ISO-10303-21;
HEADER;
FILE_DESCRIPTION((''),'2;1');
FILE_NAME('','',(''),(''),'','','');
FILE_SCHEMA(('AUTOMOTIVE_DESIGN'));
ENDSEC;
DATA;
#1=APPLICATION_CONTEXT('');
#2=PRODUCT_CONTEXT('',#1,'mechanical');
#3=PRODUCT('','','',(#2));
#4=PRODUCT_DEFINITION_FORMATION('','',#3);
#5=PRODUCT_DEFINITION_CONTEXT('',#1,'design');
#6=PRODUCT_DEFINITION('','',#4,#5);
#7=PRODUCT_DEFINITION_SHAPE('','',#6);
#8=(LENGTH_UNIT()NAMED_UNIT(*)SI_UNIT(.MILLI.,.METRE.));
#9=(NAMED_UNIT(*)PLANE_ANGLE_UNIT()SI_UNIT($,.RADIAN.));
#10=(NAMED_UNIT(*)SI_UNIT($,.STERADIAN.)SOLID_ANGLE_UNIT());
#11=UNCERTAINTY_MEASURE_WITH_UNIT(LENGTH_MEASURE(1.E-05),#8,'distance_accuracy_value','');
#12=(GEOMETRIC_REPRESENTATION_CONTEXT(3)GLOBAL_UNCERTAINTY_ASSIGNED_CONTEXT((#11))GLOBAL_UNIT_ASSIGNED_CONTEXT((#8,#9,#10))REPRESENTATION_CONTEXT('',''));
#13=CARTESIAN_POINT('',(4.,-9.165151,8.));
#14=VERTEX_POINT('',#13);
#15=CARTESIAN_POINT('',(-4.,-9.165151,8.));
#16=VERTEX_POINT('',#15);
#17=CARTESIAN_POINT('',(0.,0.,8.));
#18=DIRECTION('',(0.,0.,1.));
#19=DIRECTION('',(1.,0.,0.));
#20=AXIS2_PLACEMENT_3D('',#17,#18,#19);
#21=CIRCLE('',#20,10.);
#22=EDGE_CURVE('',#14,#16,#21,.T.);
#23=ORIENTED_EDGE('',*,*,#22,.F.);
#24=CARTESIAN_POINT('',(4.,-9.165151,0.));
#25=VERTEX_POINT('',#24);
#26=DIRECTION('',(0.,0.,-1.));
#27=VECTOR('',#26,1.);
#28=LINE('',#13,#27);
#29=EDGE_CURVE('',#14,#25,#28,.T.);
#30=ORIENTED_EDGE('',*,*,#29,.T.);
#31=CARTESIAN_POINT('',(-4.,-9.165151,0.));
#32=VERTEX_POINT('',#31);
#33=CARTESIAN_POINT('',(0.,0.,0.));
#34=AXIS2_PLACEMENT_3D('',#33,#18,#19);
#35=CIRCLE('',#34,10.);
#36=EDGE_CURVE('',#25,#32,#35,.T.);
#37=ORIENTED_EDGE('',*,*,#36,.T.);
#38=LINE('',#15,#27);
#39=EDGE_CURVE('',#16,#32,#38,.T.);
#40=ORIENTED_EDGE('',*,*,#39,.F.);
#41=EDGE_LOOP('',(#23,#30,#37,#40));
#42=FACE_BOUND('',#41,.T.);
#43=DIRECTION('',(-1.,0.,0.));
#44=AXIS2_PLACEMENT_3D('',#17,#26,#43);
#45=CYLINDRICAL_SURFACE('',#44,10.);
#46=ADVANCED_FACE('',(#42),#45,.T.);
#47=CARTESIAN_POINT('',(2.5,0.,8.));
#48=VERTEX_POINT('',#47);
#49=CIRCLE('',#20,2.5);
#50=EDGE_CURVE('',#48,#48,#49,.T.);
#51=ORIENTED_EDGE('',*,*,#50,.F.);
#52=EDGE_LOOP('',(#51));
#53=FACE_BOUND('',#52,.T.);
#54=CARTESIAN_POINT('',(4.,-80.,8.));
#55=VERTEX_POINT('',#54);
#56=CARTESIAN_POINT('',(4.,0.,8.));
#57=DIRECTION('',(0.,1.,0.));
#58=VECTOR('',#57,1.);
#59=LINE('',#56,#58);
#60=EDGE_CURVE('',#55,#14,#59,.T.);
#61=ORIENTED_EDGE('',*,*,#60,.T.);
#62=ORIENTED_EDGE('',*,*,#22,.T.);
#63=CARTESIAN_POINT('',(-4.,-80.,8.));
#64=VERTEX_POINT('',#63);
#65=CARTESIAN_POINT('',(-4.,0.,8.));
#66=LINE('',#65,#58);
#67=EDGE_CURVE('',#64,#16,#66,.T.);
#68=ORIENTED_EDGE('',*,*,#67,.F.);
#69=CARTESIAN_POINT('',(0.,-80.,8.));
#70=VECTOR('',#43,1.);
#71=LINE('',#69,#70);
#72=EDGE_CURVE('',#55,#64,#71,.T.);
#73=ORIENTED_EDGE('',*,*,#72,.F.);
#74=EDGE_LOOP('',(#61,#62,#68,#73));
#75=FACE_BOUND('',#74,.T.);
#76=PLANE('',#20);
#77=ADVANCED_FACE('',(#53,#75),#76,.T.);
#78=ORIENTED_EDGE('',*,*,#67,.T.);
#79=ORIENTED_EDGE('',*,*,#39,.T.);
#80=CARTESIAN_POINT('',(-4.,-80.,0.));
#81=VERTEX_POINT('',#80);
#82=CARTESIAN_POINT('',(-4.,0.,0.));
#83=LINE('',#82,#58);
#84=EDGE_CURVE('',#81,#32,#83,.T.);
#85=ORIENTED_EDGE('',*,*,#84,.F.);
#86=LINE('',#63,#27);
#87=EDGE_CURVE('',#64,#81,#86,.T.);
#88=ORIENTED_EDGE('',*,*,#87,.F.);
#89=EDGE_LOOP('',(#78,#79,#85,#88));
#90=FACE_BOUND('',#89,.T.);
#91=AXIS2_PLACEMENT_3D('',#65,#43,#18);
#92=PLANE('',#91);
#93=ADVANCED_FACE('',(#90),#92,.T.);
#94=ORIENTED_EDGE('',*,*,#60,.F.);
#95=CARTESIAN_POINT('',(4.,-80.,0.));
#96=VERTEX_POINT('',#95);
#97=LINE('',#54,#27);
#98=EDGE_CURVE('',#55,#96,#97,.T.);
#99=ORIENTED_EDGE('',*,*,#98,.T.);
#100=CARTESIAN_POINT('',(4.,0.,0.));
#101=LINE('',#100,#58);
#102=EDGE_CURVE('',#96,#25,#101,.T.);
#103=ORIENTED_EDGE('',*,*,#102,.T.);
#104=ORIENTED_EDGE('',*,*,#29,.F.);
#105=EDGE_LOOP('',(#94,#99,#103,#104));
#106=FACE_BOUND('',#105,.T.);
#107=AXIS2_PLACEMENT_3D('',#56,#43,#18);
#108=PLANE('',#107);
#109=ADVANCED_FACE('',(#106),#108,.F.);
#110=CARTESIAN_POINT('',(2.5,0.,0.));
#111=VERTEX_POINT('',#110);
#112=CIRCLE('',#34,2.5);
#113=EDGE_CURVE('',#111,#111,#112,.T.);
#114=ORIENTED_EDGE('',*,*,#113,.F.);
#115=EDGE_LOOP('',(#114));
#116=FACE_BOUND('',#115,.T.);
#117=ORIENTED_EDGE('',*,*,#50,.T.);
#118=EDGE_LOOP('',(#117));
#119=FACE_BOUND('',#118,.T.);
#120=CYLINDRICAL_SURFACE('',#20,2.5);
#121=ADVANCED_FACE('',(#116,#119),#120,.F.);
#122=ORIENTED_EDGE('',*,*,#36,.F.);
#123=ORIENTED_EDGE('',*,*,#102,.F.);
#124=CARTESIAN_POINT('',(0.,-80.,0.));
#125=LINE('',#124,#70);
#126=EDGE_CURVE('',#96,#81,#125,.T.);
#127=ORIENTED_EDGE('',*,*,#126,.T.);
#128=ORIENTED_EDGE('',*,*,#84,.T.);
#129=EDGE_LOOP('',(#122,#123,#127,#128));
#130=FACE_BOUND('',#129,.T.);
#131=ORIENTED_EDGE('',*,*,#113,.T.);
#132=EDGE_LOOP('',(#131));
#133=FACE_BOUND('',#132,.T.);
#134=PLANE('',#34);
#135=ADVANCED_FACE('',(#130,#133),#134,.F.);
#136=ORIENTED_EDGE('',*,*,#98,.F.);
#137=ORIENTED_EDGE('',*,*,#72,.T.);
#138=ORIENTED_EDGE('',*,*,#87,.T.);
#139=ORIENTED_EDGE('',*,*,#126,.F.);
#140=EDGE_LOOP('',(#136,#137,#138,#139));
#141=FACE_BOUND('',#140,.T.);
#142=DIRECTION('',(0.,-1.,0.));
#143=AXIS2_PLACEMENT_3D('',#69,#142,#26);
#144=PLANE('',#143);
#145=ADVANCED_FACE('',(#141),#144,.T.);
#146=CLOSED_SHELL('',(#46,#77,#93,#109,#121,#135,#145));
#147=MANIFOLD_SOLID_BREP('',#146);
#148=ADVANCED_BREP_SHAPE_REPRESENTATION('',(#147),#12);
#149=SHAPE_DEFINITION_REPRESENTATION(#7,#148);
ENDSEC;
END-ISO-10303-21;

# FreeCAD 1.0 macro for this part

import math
import FreeCAD as App
import Part
import Sketcher
Q = App.Units.Quantity

doc = App.newDocument("Part")
body = doc.addObject("PartDesign::Body", "Body")

# Sketch on XY plane
sketch1 = doc.addObject("Sketcher::SketchObject", "Sketch")
body.addObject(sketch1)
sketch1.AttachmentSupport = (doc.XY_Plane, [""])
sketch1.MapMode = "FlatFace"
sketch1.addGeometry(Part.LineSegment(App.Vector(-4, -9.165151, 0), App.Vector(-4, -80, 0)), False)
sketch1.addGeometry(Part.LineSegment(App.Vector(-4, -80, 0), App.Vector(4, -80, 0)), False)
sketch1.addGeometry(Part.LineSegment(App.Vector(4, -80, 0), App.Vector(4, -9.165151, 0)), False)
sketch1.addGeometry(Part.ArcOfCircle(Part.Circle(App.Vector(0, 0, 0), App.Vector(0, 0, 1), 10), math.radians(-66.421822), math.radians(246.421822)), False)
sketch1.addConstraint(Sketcher.Constraint("Coincident", 0, 2, 1, 1))
sketch1.addConstraint(Sketcher.Constraint("Coincident", 1, 2, 2, 1))
sketch1.addConstraint(Sketcher.Constraint("Coincident", 2, 2, 3, 1))
sketch1.addConstraint(Sketcher.Constraint("Coincident", 3, 2, 0, 1))
sketch1.addConstraint(Sketcher.Constraint("Vertical", 0))
sketch1.addConstraint(Sketcher.Constraint("Horizontal", 1))
sketch1.addConstraint(Sketcher.Constraint("Vertical", 2))
sketch1.addConstraint(Sketcher.Constraint("Coincident", 3, 3, -1, 1))
sketch1.addConstraint(Sketcher.Constraint("Horizontal", 2, 2, 3, 2))
sketch1.addConstraint(Sketcher.Constraint("Radius", 3, Q("10 mm")))
sketch1.addConstraint(Sketcher.Constraint("DistanceX", 1, 1, 1, 2, Q("8 mm")))
sketch1.addConstraint(Sketcher.Constraint("DistanceY", 0, 2, -1, 1, Q("80 mm")))
pad1 = doc.addObject("PartDesign::Pad", "Pad")
body.addObject(pad1)
pad1.Profile = sketch1
pad1.Length = 8

# Sketch on XY plane
sketch2 = doc.addObject("Sketcher::SketchObject", "Sketch001")
body.addObject(sketch2)
sketch2.AttachmentSupport = (doc.XY_Plane, [""])
sketch2.MapMode = "FlatFace"
sketch2.AttachmentOffset = App.Placement(App.Vector(0, 0, 8), App.Rotation())
sketch2.addGeometry(Part.Circle(App.Vector(0, 0, 0), App.Vector(0, 0, 1), 2.5), False)
sketch2.addConstraint(Sketcher.Constraint("Coincident", 0, 3, -1, 1))
sketch2.addConstraint(Sketcher.Constraint("Diameter", 0, Q("5 mm")))
doc.recompute()
hole = doc.addObject("PartDesign::Hole", "Hole")
body.addObject(hole)
hole.Profile = sketch2
hole.ThreadType = "None"
hole.Diameter = 5
hole.DepthType = "ThroughAll"

doc.recompute()
